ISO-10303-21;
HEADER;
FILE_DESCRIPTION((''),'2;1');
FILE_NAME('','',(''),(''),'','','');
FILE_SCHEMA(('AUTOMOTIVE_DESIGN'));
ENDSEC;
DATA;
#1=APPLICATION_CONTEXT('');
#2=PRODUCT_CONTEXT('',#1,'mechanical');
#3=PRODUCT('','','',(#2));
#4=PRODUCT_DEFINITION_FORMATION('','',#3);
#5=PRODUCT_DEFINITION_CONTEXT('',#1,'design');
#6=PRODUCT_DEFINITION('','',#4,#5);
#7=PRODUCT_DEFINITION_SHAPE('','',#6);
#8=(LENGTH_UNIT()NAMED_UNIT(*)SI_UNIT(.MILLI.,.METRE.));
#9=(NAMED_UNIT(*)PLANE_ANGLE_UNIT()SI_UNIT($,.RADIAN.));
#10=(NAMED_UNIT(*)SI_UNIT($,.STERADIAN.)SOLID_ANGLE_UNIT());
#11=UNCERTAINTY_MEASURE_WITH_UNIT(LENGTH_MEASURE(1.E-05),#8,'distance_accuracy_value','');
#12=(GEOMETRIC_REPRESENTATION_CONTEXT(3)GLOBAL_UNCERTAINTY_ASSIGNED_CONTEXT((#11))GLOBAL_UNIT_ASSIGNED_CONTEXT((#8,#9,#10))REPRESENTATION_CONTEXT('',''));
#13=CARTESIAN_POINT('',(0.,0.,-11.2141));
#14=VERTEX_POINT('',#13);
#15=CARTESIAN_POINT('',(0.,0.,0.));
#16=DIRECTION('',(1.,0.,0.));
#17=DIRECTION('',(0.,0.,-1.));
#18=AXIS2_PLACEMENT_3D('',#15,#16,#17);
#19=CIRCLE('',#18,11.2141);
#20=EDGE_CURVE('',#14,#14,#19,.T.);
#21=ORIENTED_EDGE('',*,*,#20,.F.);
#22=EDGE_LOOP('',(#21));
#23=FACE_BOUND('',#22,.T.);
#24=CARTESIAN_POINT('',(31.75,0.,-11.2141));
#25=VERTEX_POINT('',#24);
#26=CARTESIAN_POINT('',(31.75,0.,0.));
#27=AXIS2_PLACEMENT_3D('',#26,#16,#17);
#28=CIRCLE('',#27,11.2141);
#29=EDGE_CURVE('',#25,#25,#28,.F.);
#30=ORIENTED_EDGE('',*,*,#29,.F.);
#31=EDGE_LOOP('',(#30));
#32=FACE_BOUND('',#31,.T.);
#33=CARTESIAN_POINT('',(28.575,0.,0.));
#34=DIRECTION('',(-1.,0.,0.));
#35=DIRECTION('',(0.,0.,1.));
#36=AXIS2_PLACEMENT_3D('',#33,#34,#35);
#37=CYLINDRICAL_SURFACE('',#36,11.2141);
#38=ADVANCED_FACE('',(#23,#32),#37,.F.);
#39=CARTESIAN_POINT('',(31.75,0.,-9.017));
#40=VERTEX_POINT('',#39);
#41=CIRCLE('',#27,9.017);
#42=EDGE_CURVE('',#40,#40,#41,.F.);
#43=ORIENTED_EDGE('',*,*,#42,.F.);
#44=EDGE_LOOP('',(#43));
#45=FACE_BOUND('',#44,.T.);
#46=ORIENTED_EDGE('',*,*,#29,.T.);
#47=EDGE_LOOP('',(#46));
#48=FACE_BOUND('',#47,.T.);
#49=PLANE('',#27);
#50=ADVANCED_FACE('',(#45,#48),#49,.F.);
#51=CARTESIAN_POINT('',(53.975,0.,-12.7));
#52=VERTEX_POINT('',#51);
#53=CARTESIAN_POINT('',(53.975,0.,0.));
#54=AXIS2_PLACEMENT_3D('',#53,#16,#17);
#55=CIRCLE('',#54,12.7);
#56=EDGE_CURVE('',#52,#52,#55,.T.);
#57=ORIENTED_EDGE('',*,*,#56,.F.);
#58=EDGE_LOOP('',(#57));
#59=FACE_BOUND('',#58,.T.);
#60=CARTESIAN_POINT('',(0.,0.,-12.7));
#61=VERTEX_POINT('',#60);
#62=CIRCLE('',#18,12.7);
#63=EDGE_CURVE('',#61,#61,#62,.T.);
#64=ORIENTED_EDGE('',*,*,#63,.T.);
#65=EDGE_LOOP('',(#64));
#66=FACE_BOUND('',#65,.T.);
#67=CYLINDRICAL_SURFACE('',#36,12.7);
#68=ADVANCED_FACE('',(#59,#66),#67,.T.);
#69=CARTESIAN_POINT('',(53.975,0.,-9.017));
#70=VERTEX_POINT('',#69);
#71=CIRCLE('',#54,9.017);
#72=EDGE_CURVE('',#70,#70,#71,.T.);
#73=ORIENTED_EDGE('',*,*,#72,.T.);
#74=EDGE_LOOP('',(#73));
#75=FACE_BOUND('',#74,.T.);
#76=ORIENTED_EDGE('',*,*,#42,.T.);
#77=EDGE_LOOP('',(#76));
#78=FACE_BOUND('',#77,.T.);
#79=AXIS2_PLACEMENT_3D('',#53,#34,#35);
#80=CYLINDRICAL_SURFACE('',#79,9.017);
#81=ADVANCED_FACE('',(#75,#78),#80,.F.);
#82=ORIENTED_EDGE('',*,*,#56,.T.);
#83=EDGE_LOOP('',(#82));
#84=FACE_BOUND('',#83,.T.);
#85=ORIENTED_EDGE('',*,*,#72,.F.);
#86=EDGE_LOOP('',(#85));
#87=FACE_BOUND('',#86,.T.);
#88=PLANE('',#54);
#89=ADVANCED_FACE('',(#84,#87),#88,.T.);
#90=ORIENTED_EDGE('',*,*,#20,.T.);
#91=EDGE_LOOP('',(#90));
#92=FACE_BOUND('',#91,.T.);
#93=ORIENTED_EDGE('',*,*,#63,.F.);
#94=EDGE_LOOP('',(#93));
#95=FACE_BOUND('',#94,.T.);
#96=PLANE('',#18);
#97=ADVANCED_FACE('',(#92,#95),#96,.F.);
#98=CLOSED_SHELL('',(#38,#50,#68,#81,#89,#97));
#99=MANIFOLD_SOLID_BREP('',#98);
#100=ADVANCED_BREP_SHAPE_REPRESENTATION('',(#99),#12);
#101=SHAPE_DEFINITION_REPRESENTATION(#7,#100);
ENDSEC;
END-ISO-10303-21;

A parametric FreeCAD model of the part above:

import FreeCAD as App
import Part
import Sketcher

V = App.Vector
Q = App.Units.Quantity

doc = App.newDocument("Part")
body = doc.addObject("PartDesign::Body", "Body")

# Sketch on YZ plane
sketch1 = doc.addObject("Sketcher::SketchObject", "Sketch")
body.addObject(sketch1)
sketch1.AttachmentSupport = (doc.YZ_Plane, [""])
sketch1.MapMode = "FlatFace"
sketch1.addGeometry([
    Part.Circle(V(0, 0, 0), V(0, 0, 1), 12.7),
    Part.Circle(V(0, 0, 0), V(0, 0, 1), 11.2141),
], False)
sketch1.addConstraint([
    Sketcher.Constraint("Coincident", 0, 3, -1, 1),
    Sketcher.Constraint("Coincident", 1, 3, -1, 1),
    Sketcher.Constraint("Diameter", 0, Q("1 in")),
    Sketcher.Constraint("Diameter", 1, Q("0.883 in")),
])
pad1 = doc.addObject("PartDesign::Pad", "Pad")
body.addObject(pad1)
pad1.Profile = sketch1
pad1.Length = Q("1.125 in")

# Sketch on YZ plane
sketch2 = doc.addObject("Sketcher::SketchObject", "Sketch001")
body.addObject(sketch2)
sketch2.AttachmentSupport = (doc.YZ_Plane, [""])
sketch2.MapMode = "FlatFace"
sketch2.AttachmentOffset = App.Placement(V(0, 0, 1.125 * 25.4), App.Rotation())
sketch2.addGeometry([
    Part.Circle(V(0, 0, 0), V(0, 0, 1), 12.7),
    Part.Circle(V(0, 0, 0), V(0, 0, 1), 9.017),
], False)
sketch2.addConstraint([
    Sketcher.Constraint("Coincident", 0, 3, -1, 1),
    Sketcher.Constraint("Coincident", 1, 3, -1, 1),
    Sketcher.Constraint("Diameter", 0, Q("1 in")),
    Sketcher.Constraint("Diameter", 1, Q("0.71 in")),
])
pad2 = doc.addObject("PartDesign::Pad", "Pad001")
body.addObject(pad2)
pad2.Profile = sketch2
pad2.Length = Q("1 in")

# Sketch on YZ plane
sketch3 = doc.addObject("Sketcher::SketchObject", "Sketch002")
body.addObject(sketch3)
sketch3.AttachmentSupport = (doc.YZ_Plane, [""])
sketch3.MapMode = "FlatFace"
sketch3.AttachmentOffset = App.Placement(V(0, 0, 1.125 * 25.4), App.Rotation())
sketch3.addGeometry([
    Part.Circle(V(0, 0, 0), V(0, 0, 1), 11.2141),
    Part.Circle(V(0, 0, 0), V(0, 0, 1), 9.017),
], False)
sketch3.addConstraint([
    Sketcher.Constraint("Coincident", 0, 3, -1, 1),
    Sketcher.Constraint("Coincident", 1, 3, -1, 1),
    Sketcher.Constraint("Diameter", 1, Q("0.71 in")),
    Sketcher.Constraint("Diameter", 0, Q("0.883 in")),
])
pocket1 = doc.addObject("PartDesign::Pocket", "Pocket")
body.addObject(pocket1)
pocket1.Profile = sketch3
pocket1.Length = Q("0.125 in")
pocket1.Reversed = True

doc.recompute()
